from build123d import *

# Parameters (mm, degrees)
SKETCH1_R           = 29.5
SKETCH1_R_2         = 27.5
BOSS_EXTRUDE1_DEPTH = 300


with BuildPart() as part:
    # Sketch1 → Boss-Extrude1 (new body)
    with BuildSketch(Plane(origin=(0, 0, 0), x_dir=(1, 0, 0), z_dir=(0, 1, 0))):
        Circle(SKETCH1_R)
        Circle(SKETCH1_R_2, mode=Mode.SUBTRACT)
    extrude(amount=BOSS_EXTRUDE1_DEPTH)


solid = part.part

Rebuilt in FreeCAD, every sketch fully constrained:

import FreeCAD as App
import Part
import Sketcher
from FreeCAD import Vector
Q = App.Units.Quantity

doc = App.newDocument("Part")
body = doc.addObject("PartDesign::Body", "Body")

sketch1 = body.newObject("Sketcher::SketchObject", "Sketch")
sketch1.AttachmentSupport = (doc.getObject("XZ_Plane"), [""])
sketch1.MapMode = "FlatFace"
sketch1.addGeometry([
    Part.Circle(Vector(0, 0, 0), Vector(0, 0, 1), 30),
    Part.Circle(Vector(0, 0, 0), Vector(0, 0, 1), 28),
], False)
sketch1.addConstraint([
    Sketcher.Constraint("Coincident", 0, 3, -1, 1),
    Sketcher.Constraint("Coincident", 1, 3, -1, 1),
    Sketcher.Constraint("Diameter", 0, Q("59 mm")),
    Sketcher.Constraint("Diameter", 1, Q("55 mm")),
])
pad1 = body.newObject("PartDesign::Pad", "Pad")
pad1.Profile = sketch1
pad1.Length = 300
pad1.Reversed = True

doc.recompute()
